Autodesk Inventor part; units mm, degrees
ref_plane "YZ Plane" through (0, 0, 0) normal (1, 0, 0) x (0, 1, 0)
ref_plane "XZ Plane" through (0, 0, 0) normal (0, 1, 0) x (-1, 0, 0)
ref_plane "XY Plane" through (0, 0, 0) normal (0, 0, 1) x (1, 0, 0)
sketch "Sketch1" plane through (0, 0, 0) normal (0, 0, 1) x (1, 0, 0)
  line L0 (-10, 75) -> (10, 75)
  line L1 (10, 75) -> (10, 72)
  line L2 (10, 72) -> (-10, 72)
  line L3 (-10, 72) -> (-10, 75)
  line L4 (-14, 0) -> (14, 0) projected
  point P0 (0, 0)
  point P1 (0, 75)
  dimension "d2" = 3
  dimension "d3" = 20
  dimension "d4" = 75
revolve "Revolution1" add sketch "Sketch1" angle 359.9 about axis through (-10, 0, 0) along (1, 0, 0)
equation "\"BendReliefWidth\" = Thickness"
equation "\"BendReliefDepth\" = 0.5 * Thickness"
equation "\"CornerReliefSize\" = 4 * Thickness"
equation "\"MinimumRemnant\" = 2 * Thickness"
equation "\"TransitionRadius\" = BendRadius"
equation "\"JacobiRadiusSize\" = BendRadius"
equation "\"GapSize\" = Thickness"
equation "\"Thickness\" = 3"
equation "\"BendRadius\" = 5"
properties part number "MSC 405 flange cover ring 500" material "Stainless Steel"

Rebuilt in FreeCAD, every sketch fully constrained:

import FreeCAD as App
import Part
import Sketcher

V = App.Vector


def add_polygon(sketch, points):
    """Adds a closed chain of lines whose ends are joined by coincident constraints."""
    first, n = sketch.GeometryCount, len(points)
    for a, b in zip(points, points[1:] + points[:1]):
        sketch.addGeometry(Part.LineSegment(App.Vector(*a, 0), App.Vector(*b, 0)), False)
    for i in range(n):
        sketch.addConstraint(Sketcher.Constraint("Coincident", first + i, 2, first + (i + 1) % n, 1))

doc = App.newDocument("Part")
body = doc.addObject("PartDesign::Body", "Body")

# Sketch on XY plane
sketch1 = body.newObject("Sketcher::SketchObject", "Sketch")
sketch1.AttachmentSupport = (doc.getObject("XY_Plane"), [""])
sketch1.MapMode = "FlatFace"
add_polygon(sketch1, [(10, 75), (-10, 75), (-10, 72), (10, 72)])  # lines 0-3
sketch1.addConstraint(Sketcher.Constraint("Horizontal", 0))
sketch1.addConstraint(Sketcher.Constraint("Vertical", 1))
sketch1.addConstraint(Sketcher.Constraint("Horizontal", 2))
sketch1.addConstraint(Sketcher.Constraint("Vertical", 3))
sketch1.addConstraint(Sketcher.Constraint("DistanceX", 0, 2, 0, 1, 20.0))
sketch1.addConstraint(Sketcher.Constraint("DistanceY", 1, 2, 1, 1, 3.0))
sketch1.addConstraint(Sketcher.Constraint("DistanceY", -1, 1, 0, 2, 75.0))
sketch1.addConstraint(Sketcher.Constraint("DistanceX", 0, 2, -1, 1, 10.0))
revolution = body.newObject("PartDesign::Revolution", "Revolution")
revolution.Profile = sketch1
revolution.ReferenceAxis = (sketch1, ["H_Axis"])
revolution.Angle = 359.9

doc.recompute()
